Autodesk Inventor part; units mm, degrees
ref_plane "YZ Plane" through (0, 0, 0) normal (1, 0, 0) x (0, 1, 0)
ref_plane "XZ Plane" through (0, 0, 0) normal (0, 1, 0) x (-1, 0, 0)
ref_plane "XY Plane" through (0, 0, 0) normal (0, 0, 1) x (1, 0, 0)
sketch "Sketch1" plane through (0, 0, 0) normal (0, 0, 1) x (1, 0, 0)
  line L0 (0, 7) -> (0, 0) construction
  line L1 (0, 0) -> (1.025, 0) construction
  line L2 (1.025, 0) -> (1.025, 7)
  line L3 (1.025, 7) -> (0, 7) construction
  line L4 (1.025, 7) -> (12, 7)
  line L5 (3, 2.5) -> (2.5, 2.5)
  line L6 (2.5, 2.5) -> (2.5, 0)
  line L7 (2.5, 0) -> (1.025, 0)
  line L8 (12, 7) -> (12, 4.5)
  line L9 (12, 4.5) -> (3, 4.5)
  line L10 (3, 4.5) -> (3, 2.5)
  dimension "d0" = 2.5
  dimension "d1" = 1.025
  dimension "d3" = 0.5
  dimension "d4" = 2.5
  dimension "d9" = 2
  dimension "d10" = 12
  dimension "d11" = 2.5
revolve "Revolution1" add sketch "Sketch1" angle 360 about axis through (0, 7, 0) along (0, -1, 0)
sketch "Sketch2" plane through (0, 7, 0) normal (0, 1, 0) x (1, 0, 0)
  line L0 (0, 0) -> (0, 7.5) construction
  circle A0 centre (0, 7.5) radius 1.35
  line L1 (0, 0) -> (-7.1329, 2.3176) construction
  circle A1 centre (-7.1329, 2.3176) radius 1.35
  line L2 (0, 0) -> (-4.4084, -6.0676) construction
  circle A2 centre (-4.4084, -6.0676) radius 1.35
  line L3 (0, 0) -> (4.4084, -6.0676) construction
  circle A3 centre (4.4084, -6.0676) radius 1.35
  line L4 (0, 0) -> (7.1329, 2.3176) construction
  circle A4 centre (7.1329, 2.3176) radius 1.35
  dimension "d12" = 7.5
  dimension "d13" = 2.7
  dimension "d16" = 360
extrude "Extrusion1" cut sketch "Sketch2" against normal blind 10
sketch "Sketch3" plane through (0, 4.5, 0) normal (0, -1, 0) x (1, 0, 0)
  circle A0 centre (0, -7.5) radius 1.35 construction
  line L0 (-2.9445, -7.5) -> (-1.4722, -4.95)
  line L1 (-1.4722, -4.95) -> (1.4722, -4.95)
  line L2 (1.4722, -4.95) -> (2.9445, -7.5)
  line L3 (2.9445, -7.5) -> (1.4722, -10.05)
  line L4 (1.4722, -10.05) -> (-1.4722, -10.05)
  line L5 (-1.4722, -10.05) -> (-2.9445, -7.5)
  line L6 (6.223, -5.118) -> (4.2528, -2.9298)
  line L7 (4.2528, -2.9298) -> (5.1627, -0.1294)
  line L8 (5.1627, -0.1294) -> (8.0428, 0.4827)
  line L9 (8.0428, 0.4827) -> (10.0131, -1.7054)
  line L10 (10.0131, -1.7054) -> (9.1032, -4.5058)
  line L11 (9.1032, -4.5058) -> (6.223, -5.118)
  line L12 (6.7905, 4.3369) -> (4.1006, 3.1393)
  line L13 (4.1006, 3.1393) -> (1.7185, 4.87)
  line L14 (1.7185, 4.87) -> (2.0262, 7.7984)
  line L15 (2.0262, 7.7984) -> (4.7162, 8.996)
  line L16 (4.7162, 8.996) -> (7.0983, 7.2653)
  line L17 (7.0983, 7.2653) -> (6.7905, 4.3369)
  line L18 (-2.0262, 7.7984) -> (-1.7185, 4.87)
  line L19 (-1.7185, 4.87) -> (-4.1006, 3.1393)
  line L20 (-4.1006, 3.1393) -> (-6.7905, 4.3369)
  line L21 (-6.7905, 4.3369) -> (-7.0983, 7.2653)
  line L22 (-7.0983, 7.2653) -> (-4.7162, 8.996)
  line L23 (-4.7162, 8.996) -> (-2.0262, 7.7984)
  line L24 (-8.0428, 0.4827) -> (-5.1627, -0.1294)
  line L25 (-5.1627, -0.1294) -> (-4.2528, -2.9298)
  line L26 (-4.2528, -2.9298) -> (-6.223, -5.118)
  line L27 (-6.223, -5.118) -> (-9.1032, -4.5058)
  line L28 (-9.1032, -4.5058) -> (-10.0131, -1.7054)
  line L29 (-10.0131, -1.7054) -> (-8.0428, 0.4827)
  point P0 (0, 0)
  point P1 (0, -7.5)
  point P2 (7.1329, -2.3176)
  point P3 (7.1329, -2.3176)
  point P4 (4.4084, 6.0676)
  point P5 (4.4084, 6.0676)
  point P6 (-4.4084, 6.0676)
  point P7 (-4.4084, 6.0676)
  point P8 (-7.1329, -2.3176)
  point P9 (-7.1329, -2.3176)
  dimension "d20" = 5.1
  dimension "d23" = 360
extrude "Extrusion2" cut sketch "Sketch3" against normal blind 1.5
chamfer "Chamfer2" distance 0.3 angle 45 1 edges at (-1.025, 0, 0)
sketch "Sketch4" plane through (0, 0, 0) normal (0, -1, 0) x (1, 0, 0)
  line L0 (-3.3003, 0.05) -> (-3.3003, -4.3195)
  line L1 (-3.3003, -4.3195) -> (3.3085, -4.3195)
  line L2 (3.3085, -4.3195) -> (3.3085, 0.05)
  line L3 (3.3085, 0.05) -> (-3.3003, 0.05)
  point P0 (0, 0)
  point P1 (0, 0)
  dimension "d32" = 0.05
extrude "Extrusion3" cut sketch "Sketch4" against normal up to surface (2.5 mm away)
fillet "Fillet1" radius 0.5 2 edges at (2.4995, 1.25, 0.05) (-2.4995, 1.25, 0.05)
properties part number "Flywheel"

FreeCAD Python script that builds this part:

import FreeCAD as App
import Part
import Sketcher
from FreeCAD import Vector
Q = App.Units.Quantity


def edges_at(feature, points):
    """Names of the edges that pass closest to the given points."""
    edges = feature.Shape.Edges
    near = lambda p: min(range(len(edges)), key=lambda i: edges[i].distToShape(Part.Vertex(*p))[0])
    return sorted({f"Edge{near(p) + 1}" for p in points})


def add_polygon(sketch, points):
    """Adds a closed chain of lines whose ends are joined by coincident constraints."""
    first, n = sketch.GeometryCount, len(points)
    for a, b in zip(points, points[1:] + points[:1]):
        sketch.addGeometry(Part.LineSegment(App.Vector(*a, 0), App.Vector(*b, 0)), False)
    for i in range(n):
        sketch.addConstraint(Sketcher.Constraint("Coincident", first + i, 2, first + (i + 1) % n, 1))

doc = App.newDocument("Part")
body = doc.addObject("PartDesign::Body", "Body")

sketch1 = body.newObject("Sketcher::SketchObject", "Sketch")
sketch1.AttachmentSupport = (doc.getObject("XY_Plane"), [""])
sketch1.MapMode = "FlatFace"
add_polygon(sketch1, [(1, 7), (1, 0), (2.5, 0), (2.5, 2.5), (3, 2.5), (3, 4.5), (12, 4.5), (12, 7)])
sketch1.addConstraint(Sketcher.Constraint("Vertical", 0))
sketch1.addConstraint(Sketcher.Constraint("Horizontal", 1))
sketch1.addConstraint(Sketcher.Constraint("Vertical", 2))
sketch1.addConstraint(Sketcher.Constraint("Horizontal", 3))
sketch1.addConstraint(Sketcher.Constraint("Vertical", 4))
sketch1.addConstraint(Sketcher.Constraint("Horizontal", 5))
sketch1.addConstraint(Sketcher.Constraint("Vertical", 6))
sketch1.addConstraint(Sketcher.Constraint("Horizontal", 7))
sketch1.addConstraint(Sketcher.Constraint("PointOnObject", 0, 2, -1))
sketch1.addConstraint(Sketcher.Constraint("Equal", 2, 6))
sketch1.addConstraint(Sketcher.Constraint("DistanceY", 4, 1, 4, 2, 2.0))
sketch1.addConstraint(Sketcher.Constraint("DistanceX", 3, 1, 3, 2, 0.5))
sketch1.addConstraint(Sketcher.Constraint("DistanceY", 2, 1, 2, 2, 2.5))
sketch1.addConstraint(Sketcher.Constraint("DistanceX", -1, 1, 5, 2, 12.0))
sketch1.addConstraint(Sketcher.Constraint("DistanceX", -1, 1, 1, 2, 2.5))
sketch1.addConstraint(Sketcher.Constraint("DistanceX", -1, 1, 0, 2, 1.025))
revolution = body.newObject("PartDesign::Revolution", "Revolution")
revolution.Profile = sketch1
revolution.ReferenceAxis = (sketch1, ["V_Axis"])
revolution.Angle = 360

sketch2 = body.newObject("Sketcher::SketchObject", "Sketch001")
sketch2.AttachmentSupport = (doc.getObject("XZ_Plane"), [""])
sketch2.MapMode = "FlatFace"
sketch2.AttachmentOffset = App.Placement(Vector(0, 0, -7), App.Rotation())
sketch2.addGeometry(Part.Circle(Vector(0, -7.5, 0), Vector(0, 0, 1), 1.4), False)
sketch2.addGeometry(Part.Circle(Vector(-7.1, -2.3, 0), Vector(0, 0, 1), 1.4), False)
sketch2.addGeometry(Part.Circle(Vector(-4.4, 6.1, 0), Vector(0, 0, 1), 1.4), False)
sketch2.addGeometry(Part.Circle(Vector(4.4, 6.1, 0), Vector(0, 0, 1), 1.4), False)
sketch2.addGeometry(Part.Circle(Vector(7.1, -2.3, 0), Vector(0, 0, 1), 1.4), False)
sketch2.addConstraint(Sketcher.Constraint("Equal", 0, 1))
sketch2.addConstraint(Sketcher.Constraint("Equal", 1, 2))
sketch2.addConstraint(Sketcher.Constraint("Equal", 2, 3))
sketch2.addConstraint(Sketcher.Constraint("Equal", 3, 4))
sketch2.addConstraint(Sketcher.Constraint("Symmetric", 2, 3, 3, 3, -2))
sketch2.addConstraint(Sketcher.Constraint("Symmetric", 1, 3, 4, 3, -2))
sketch2.addConstraint(Sketcher.Constraint("PointOnObject", 0, 3, -2))
sketch2.addConstraint(Sketcher.Constraint("Diameter", 0, 2.7))
sketch2.addConstraint(Sketcher.Constraint("DistanceY", 0, 3, -1, 1, 7.5))
sketch2.addConstraint(Sketcher.Constraint("DistanceX", 1, 3, -1, 1, 7.133))
sketch2.addConstraint(Sketcher.Constraint("DistanceY", 1, 3, -1, 1, 2.3176))
sketch2.addConstraint(Sketcher.Constraint("DistanceX", 2, 3, -1, 1, 4.4084))
sketch2.addConstraint(Sketcher.Constraint("DistanceY", -1, 1, 2, 3, 6.0676))
pocket1 = body.newObject("PartDesign::Pocket", "Pocket")
pocket1.Profile = sketch2
pocket1.Length = 10
pocket1.Reversed = True

sketch3 = body.newObject("Sketcher::SketchObject", "Sketch002")
sketch3.AttachmentSupport = (doc.getObject("XZ_Plane"), [""])
sketch3.MapMode = "FlatFace"
sketch3.AttachmentOffset = App.Placement(Vector(0, 0, -4.5), App.Rotation())
add_polygon(sketch3, [(-1.5, -5), (-2.9, -7.5), (-1.5, -10.1), (1.5, -10.1), (2.9, -7.5), (1.5, -5)])
add_polygon(sketch3, [(4.3, -2.9), (6.2, -5.1), (9.1, -4.5), (10, -1.7), (8, 0.5), (5.2, -0.1)])
add_polygon(sketch3, [(4.1, 3.1), (6.8, 4.3), (7.1, 7.3), (4.7, 9), (2, 7.8), (1.7, 4.9)])
add_polygon(sketch3, [(-1.7, 4.9), (-2, 7.8), (-4.7, 9), (-7.1, 7.3), (-6.8, 4.3), (-4.1, 3.1)])
add_polygon(sketch3, [(-5.2, -0.1), (-8, 0.5), (-10, -1.7), (-9.1, -4.5), (-6.2, -5.1), (-4.3, -2.9)])
sketch3.addConstraint(Sketcher.Constraint("Horizontal", 2))
sketch3.addConstraint(Sketcher.Constraint("Horizontal", 5))
sketch3.addConstraint(Sketcher.Constraint("Symmetric", 0, 2, 3, 2, -2))
sketch3.addConstraint(Sketcher.Constraint("Symmetric", 15, 2, 18, 2, -2))
sketch3.addConstraint(Sketcher.Constraint("Symmetric", 14, 2, 19, 2, -2))
sketch3.addConstraint(Sketcher.Constraint("Symmetric", 13, 2, 20, 2, -2))
sketch3.addConstraint(Sketcher.Constraint("Symmetric", 12, 2, 21, 2, -2))
sketch3.addConstraint(Sketcher.Constraint("Symmetric", 17, 2, 22, 2, -2))
sketch3.addConstraint(Sketcher.Constraint("Symmetric", 16, 2, 23, 2, -2))
sketch3.addConstraint(Sketcher.Constraint("Symmetric", 9, 2, 24, 2, -2))
sketch3.addConstraint(Sketcher.Constraint("Symmetric", 8, 2, 25, 2, -2))
sketch3.addConstraint(Sketcher.Constraint("Symmetric", 7, 2, 26, 2, -2))
sketch3.addConstraint(Sketcher.Constraint("Symmetric", 6, 2, 27, 2, -2))
sketch3.addConstraint(Sketcher.Constraint("Symmetric", 11, 2, 28, 2, -2))
sketch3.addConstraint(Sketcher.Constraint("Symmetric", 10, 2, 29, 2, -2))
sketch3.addConstraint(Sketcher.Constraint("Parallel", 0, 3))
sketch3.addConstraint(Sketcher.Constraint("Parallel", 1, 4))
sketch3.addConstraint(Sketcher.Constraint("Parallel", 6, 9))
sketch3.addConstraint(Sketcher.Constraint("Parallel", 7, 10))
sketch3.addConstraint(Sketcher.Constraint("Parallel", 8, 11))
sketch3.addConstraint(Sketcher.Constraint("Parallel", 12, 15))
sketch3.addConstraint(Sketcher.Constraint("Parallel", 13, 16))
sketch3.addConstraint(Sketcher.Constraint("Parallel", 14, 17))
sketch3.addConstraint(Sketcher.Constraint("Vertical", 2, 2, 4, 2))
sketch3.addConstraint(Sketcher.Constraint("Vertical", 1, 2, 5, 2))
sketch3.addConstraint(Sketcher.Constraint("Equal", 4, 6))
sketch3.addConstraint(Sketcher.Constraint("Equal", 6, 7))
sketch3.addConstraint(Sketcher.Constraint("Equal", 7, 8))
sketch3.addConstraint(Sketcher.Constraint("Equal", 8, 9))
sketch3.addConstraint(Sketcher.Constraint("Equal", 11, 12))
sketch3.addConstraint(Sketcher.Constraint("Equal", 12, 13))
sketch3.addConstraint(Sketcher.Constraint("Equal", 13, 14))
sketch3.addConstraint(Sketcher.Constraint("Equal", 14, 15))
sketch3.addConstraint(Sketcher.Constraint("DistanceY", 2, 2, 4, 2, 5.1))
sketch3.addConstraint(Sketcher.Constraint("Angle", 0, Q("-120.001 deg")))
sketch3.addConstraint(Sketcher.Constraint("Angle", 6, Q("-48.001 deg")))
sketch3.addConstraint(Sketcher.Constraint("Angle", 7, Q("12 deg")))
sketch3.addConstraint(Sketcher.Constraint("Angle", 8, Q("72 deg")))
sketch3.addConstraint(Sketcher.Constraint("Angle", 12, Q("23.9996 deg")))
sketch3.addConstraint(Sketcher.Constraint("Angle", 13, Q("83.9998 deg")))
sketch3.addConstraint(Sketcher.Constraint("Angle", 14, Q("144 deg")))
sketch3.addConstraint(Sketcher.Constraint("DistanceY", 0, 2, -1, 1, 7.5))
sketch3.addConstraint(Sketcher.Constraint("DistanceY", -1, 1, 16, 2, 4.87))
sketch3.addConstraint(Sketcher.Constraint("DistanceX", 2, 1, 2, 2, 2.9444))
sketch3.addConstraint(Sketcher.Constraint("DistanceX", -1, 1, 6, 2, 6.223))
sketch3.addConstraint(Sketcher.Constraint("DistanceY", 6, 2, -1, 1, 5.118))
sketch3.addConstraint(Sketcher.Constraint("DistanceX", 17, 2, 10, 2, 1.062))
pocket2 = body.newObject("PartDesign::Pocket", "Pocket001")
pocket2.Profile = sketch3
pocket2.Length = 1.5
doc.recompute()

chamfer = body.newObject("PartDesign::Chamfer", "Chamfer")
chamfer.Base = (pocket2, edges_at(pocket2, [(-1.025, 0, 0)]))
chamfer.Size = 0.3

sketch4 = body.newObject("Sketcher::SketchObject", "Sketch003")
sketch4.AttachmentSupport = (doc.getObject("XZ_Plane"), [""])
sketch4.MapMode = "FlatFace"
add_polygon(sketch4, [(3.3, 0.1), (-3.3, 0.1), (-3.3, -4.3), (3.3, -4.3)])
sketch4.addConstraint(Sketcher.Constraint("Horizontal", 0))
sketch4.addConstraint(Sketcher.Constraint("Vertical", 1))
sketch4.addConstraint(Sketcher.Constraint("Horizontal", 2))
sketch4.addConstraint(Sketcher.Constraint("Vertical", 3))
sketch4.addConstraint(Sketcher.Constraint("DistanceY", -1, 1, 0, 2, 0.05))
sketch4.addConstraint(Sketcher.Constraint("DistanceX", 0, 2, 0, 1, 6.6088))
sketch4.addConstraint(Sketcher.Constraint("DistanceY", 1, 2, 1, 1, 4.3695))
sketch4.addConstraint(Sketcher.Constraint("DistanceX", 0, 2, -1, 1, 3.3003))
pocket3 = body.newObject("PartDesign::Pocket", "Pocket002")
pocket3.Profile = sketch4
pocket3.Length = 2.5
doc.recompute()

fillet = body.newObject("PartDesign::Fillet", "Fillet")
fillet.Base = (pocket3, edges_at(pocket3, [(2.499, 1.25, 0.05), (-2.499, 1.25, 0.05)]))
fillet.Radius = 0.5

doc.recompute()
